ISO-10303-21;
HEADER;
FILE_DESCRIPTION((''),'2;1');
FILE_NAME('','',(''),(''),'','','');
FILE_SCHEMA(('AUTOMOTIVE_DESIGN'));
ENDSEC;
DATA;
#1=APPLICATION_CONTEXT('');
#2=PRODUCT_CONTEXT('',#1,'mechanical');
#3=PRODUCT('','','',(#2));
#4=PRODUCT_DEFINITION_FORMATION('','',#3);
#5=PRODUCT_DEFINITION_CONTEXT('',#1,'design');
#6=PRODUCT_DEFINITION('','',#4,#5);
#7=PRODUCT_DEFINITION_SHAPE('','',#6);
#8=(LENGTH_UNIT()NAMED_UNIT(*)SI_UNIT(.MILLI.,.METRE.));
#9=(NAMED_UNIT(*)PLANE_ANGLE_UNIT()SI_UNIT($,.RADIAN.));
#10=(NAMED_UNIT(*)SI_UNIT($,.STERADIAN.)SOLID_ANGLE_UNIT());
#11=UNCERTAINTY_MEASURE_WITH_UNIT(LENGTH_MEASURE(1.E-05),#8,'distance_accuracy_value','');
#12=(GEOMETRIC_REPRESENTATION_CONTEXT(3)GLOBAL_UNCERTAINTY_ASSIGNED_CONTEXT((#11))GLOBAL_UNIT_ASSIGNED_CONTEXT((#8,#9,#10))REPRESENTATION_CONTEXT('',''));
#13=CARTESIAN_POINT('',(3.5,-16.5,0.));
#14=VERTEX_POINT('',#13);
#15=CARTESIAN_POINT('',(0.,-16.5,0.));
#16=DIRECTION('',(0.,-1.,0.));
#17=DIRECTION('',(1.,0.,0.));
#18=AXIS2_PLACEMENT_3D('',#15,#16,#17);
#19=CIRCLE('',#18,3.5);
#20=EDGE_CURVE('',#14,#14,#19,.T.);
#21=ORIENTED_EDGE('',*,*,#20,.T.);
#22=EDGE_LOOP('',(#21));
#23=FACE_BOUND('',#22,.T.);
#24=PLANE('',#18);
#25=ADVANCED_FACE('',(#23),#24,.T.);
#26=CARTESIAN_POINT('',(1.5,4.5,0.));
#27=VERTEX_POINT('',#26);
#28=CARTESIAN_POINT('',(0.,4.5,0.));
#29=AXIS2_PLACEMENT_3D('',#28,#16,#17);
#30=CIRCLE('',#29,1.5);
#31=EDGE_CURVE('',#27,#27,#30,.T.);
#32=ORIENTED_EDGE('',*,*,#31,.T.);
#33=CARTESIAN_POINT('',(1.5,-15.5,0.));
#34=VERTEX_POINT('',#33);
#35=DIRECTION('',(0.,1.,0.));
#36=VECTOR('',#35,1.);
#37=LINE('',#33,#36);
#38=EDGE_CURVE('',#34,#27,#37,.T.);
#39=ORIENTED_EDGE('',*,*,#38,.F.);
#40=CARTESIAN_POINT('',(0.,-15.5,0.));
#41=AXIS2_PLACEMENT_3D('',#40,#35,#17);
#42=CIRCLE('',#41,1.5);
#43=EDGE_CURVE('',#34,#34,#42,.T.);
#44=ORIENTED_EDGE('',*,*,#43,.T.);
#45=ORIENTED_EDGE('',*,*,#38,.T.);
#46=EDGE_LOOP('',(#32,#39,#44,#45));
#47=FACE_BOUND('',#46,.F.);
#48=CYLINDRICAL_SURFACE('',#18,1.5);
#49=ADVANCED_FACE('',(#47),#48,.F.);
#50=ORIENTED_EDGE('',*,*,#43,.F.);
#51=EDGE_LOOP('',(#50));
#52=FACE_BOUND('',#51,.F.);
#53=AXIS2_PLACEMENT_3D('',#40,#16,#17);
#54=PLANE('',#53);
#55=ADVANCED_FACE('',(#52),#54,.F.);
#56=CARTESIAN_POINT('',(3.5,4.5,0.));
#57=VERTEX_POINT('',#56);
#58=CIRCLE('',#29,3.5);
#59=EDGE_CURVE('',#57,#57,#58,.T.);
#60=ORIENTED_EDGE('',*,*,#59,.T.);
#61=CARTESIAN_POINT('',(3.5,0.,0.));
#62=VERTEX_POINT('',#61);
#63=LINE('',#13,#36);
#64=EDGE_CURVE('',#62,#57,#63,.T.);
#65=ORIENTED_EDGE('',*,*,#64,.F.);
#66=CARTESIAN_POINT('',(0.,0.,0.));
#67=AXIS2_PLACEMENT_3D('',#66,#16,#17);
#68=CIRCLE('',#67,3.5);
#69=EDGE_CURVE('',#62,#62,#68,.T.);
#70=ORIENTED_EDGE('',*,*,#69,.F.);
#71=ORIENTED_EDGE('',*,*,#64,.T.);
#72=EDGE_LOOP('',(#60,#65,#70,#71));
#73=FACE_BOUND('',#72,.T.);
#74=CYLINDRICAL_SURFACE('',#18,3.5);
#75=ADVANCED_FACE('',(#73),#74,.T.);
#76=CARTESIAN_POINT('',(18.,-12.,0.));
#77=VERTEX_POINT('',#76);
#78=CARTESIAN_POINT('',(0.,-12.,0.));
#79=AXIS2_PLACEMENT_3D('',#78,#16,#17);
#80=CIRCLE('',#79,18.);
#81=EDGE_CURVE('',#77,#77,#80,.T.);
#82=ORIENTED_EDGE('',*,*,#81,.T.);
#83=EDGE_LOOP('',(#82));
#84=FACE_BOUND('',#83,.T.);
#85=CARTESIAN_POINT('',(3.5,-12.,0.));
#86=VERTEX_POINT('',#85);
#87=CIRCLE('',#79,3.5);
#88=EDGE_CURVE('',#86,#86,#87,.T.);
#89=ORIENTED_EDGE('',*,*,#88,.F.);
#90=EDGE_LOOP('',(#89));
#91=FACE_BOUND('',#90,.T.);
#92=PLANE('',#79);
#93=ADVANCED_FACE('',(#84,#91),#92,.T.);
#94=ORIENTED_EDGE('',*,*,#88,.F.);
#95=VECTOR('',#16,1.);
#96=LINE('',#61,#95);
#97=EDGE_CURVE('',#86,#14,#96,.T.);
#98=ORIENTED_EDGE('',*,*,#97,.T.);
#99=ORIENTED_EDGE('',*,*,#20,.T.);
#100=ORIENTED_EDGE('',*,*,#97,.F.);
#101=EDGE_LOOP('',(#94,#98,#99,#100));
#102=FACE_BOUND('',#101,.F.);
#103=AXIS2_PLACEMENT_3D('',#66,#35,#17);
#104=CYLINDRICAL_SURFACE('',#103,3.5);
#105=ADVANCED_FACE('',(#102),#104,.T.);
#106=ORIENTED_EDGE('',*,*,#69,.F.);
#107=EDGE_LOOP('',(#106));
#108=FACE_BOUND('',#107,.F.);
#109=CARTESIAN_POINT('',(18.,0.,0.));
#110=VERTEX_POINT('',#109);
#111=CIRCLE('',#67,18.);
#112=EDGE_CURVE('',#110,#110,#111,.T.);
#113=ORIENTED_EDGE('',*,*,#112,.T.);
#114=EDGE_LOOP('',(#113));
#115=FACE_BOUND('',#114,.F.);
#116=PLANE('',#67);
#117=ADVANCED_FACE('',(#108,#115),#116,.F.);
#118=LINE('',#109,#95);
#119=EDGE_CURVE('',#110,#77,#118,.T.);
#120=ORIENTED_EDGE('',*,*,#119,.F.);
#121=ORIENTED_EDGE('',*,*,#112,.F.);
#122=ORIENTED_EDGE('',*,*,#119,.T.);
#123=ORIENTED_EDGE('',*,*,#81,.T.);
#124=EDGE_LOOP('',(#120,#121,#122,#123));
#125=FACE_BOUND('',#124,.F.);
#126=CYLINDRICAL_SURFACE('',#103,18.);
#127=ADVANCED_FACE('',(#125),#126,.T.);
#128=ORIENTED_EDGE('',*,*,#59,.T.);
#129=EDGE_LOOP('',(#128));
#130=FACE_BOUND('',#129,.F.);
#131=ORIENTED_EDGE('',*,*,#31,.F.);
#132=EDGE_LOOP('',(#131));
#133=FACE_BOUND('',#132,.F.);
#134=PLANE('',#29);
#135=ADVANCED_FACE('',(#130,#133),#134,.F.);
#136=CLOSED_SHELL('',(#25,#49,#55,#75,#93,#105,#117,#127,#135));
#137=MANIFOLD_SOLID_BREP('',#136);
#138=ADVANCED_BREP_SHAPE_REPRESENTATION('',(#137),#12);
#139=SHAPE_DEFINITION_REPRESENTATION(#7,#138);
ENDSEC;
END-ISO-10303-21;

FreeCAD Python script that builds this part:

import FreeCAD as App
import Part
import Sketcher

V = App.Vector
Q = App.Units.Quantity

doc = App.newDocument("Part")
body = doc.addObject("PartDesign::Body", "Body")

sketch1 = body.newObject("Sketcher::SketchObject", "Sketch")
sketch1.AttachmentSupport = (doc.getObject("XZ_Plane"), [""])
sketch1.MapMode = "FlatFace"
sketch1.addGeometry([
    Part.Circle(V(0, 0, 0), V(0, 0, 1), 18),
    Part.Circle(V(0, 0, 0), V(0, 0, 1), 3.5),
], False)
sketch1.addConstraint([
    Sketcher.Constraint("Coincident", 0, 3, -1, 1),
    Sketcher.Constraint("Coincident", 1, 3, -1, 1),
    Sketcher.Constraint("Diameter", 0, Q("36 mm")),
    Sketcher.Constraint("Diameter", 1, Q("7 mm")),
])
pad1 = body.newObject("PartDesign::Pad", "Pad")
pad1.Profile = sketch1
pad1.Length = 12

sketch2 = body.newObject("Sketcher::SketchObject", "Sketch001")
sketch2.AttachmentSupport = (doc.getObject("XZ_Plane"), [""])
sketch2.MapMode = "FlatFace"
sketch2.addGeometry([
    Part.Circle(V(0, 0, 0), V(0, 0, 1), 3.5),
    Part.Circle(V(0, 0, 0), V(0, 0, 1), 1.5),
], False)
sketch2.addConstraint([
    Sketcher.Constraint("Coincident", 0, 3, -1, 1),
    Sketcher.Constraint("Coincident", 1, 3, -1, 1),
    Sketcher.Constraint("Diameter", 0, Q("7 mm")),
    Sketcher.Constraint("Diameter", 1, Q("3 mm")),
])
pad2 = body.newObject("PartDesign::Pad", "Pad001")
pad2.Profile = sketch2
pad2.Length = 16.5

sketch3 = body.newObject("Sketcher::SketchObject", "Sketch002")
sketch3.AttachmentSupport = (doc.getObject("XZ_Plane"), [""])
sketch3.MapMode = "FlatFace"
sketch3.AttachmentOffset = App.Placement(V(0, 0, 16.5), App.Rotation())
sketch3.addGeometry([
    Part.Circle(V(0, 0, 0), V(0, 0, 1), 3.5),
    Part.Circle(V(0, 0, 0), V(0, 0, 1), 1.5),
], False)
sketch3.addConstraint([
    Sketcher.Constraint("Coincident", 0, 3, -1, 1),
    Sketcher.Constraint("Coincident", 1, 3, -1, 1),
    Sketcher.Constraint("Diameter", 0, Q("7 mm")),
    Sketcher.Constraint("Diameter", 1, Q("3 mm")),
])
pad3 = body.newObject("PartDesign::Pad", "Pad002")
pad3.Profile = sketch3
pad3.Length = 21
pad3.Reversed = True

sketch4 = body.newObject("Sketcher::SketchObject", "Sketch003")
sketch4.AttachmentSupport = (doc.getObject("XZ_Plane"), [""])
sketch4.MapMode = "FlatFace"
sketch4.AttachmentOffset = App.Placement(V(0, 0, 16.5), App.Rotation())
sketch4.addGeometry(Part.Circle(V(0, 0, 0), V(0, 0, 1), 2.5), False)
sketch4.addConstraint([
    Sketcher.Constraint("Coincident", 0, 3, -1, 1),
    Sketcher.Constraint("Diameter", 0, Q("5.03994 mm")),
])
pad4 = body.newObject("PartDesign::Pad", "Pad003")
pad4.Profile = sketch4
pad4.Length = 1
pad4.Reversed = True

doc.recompute()
